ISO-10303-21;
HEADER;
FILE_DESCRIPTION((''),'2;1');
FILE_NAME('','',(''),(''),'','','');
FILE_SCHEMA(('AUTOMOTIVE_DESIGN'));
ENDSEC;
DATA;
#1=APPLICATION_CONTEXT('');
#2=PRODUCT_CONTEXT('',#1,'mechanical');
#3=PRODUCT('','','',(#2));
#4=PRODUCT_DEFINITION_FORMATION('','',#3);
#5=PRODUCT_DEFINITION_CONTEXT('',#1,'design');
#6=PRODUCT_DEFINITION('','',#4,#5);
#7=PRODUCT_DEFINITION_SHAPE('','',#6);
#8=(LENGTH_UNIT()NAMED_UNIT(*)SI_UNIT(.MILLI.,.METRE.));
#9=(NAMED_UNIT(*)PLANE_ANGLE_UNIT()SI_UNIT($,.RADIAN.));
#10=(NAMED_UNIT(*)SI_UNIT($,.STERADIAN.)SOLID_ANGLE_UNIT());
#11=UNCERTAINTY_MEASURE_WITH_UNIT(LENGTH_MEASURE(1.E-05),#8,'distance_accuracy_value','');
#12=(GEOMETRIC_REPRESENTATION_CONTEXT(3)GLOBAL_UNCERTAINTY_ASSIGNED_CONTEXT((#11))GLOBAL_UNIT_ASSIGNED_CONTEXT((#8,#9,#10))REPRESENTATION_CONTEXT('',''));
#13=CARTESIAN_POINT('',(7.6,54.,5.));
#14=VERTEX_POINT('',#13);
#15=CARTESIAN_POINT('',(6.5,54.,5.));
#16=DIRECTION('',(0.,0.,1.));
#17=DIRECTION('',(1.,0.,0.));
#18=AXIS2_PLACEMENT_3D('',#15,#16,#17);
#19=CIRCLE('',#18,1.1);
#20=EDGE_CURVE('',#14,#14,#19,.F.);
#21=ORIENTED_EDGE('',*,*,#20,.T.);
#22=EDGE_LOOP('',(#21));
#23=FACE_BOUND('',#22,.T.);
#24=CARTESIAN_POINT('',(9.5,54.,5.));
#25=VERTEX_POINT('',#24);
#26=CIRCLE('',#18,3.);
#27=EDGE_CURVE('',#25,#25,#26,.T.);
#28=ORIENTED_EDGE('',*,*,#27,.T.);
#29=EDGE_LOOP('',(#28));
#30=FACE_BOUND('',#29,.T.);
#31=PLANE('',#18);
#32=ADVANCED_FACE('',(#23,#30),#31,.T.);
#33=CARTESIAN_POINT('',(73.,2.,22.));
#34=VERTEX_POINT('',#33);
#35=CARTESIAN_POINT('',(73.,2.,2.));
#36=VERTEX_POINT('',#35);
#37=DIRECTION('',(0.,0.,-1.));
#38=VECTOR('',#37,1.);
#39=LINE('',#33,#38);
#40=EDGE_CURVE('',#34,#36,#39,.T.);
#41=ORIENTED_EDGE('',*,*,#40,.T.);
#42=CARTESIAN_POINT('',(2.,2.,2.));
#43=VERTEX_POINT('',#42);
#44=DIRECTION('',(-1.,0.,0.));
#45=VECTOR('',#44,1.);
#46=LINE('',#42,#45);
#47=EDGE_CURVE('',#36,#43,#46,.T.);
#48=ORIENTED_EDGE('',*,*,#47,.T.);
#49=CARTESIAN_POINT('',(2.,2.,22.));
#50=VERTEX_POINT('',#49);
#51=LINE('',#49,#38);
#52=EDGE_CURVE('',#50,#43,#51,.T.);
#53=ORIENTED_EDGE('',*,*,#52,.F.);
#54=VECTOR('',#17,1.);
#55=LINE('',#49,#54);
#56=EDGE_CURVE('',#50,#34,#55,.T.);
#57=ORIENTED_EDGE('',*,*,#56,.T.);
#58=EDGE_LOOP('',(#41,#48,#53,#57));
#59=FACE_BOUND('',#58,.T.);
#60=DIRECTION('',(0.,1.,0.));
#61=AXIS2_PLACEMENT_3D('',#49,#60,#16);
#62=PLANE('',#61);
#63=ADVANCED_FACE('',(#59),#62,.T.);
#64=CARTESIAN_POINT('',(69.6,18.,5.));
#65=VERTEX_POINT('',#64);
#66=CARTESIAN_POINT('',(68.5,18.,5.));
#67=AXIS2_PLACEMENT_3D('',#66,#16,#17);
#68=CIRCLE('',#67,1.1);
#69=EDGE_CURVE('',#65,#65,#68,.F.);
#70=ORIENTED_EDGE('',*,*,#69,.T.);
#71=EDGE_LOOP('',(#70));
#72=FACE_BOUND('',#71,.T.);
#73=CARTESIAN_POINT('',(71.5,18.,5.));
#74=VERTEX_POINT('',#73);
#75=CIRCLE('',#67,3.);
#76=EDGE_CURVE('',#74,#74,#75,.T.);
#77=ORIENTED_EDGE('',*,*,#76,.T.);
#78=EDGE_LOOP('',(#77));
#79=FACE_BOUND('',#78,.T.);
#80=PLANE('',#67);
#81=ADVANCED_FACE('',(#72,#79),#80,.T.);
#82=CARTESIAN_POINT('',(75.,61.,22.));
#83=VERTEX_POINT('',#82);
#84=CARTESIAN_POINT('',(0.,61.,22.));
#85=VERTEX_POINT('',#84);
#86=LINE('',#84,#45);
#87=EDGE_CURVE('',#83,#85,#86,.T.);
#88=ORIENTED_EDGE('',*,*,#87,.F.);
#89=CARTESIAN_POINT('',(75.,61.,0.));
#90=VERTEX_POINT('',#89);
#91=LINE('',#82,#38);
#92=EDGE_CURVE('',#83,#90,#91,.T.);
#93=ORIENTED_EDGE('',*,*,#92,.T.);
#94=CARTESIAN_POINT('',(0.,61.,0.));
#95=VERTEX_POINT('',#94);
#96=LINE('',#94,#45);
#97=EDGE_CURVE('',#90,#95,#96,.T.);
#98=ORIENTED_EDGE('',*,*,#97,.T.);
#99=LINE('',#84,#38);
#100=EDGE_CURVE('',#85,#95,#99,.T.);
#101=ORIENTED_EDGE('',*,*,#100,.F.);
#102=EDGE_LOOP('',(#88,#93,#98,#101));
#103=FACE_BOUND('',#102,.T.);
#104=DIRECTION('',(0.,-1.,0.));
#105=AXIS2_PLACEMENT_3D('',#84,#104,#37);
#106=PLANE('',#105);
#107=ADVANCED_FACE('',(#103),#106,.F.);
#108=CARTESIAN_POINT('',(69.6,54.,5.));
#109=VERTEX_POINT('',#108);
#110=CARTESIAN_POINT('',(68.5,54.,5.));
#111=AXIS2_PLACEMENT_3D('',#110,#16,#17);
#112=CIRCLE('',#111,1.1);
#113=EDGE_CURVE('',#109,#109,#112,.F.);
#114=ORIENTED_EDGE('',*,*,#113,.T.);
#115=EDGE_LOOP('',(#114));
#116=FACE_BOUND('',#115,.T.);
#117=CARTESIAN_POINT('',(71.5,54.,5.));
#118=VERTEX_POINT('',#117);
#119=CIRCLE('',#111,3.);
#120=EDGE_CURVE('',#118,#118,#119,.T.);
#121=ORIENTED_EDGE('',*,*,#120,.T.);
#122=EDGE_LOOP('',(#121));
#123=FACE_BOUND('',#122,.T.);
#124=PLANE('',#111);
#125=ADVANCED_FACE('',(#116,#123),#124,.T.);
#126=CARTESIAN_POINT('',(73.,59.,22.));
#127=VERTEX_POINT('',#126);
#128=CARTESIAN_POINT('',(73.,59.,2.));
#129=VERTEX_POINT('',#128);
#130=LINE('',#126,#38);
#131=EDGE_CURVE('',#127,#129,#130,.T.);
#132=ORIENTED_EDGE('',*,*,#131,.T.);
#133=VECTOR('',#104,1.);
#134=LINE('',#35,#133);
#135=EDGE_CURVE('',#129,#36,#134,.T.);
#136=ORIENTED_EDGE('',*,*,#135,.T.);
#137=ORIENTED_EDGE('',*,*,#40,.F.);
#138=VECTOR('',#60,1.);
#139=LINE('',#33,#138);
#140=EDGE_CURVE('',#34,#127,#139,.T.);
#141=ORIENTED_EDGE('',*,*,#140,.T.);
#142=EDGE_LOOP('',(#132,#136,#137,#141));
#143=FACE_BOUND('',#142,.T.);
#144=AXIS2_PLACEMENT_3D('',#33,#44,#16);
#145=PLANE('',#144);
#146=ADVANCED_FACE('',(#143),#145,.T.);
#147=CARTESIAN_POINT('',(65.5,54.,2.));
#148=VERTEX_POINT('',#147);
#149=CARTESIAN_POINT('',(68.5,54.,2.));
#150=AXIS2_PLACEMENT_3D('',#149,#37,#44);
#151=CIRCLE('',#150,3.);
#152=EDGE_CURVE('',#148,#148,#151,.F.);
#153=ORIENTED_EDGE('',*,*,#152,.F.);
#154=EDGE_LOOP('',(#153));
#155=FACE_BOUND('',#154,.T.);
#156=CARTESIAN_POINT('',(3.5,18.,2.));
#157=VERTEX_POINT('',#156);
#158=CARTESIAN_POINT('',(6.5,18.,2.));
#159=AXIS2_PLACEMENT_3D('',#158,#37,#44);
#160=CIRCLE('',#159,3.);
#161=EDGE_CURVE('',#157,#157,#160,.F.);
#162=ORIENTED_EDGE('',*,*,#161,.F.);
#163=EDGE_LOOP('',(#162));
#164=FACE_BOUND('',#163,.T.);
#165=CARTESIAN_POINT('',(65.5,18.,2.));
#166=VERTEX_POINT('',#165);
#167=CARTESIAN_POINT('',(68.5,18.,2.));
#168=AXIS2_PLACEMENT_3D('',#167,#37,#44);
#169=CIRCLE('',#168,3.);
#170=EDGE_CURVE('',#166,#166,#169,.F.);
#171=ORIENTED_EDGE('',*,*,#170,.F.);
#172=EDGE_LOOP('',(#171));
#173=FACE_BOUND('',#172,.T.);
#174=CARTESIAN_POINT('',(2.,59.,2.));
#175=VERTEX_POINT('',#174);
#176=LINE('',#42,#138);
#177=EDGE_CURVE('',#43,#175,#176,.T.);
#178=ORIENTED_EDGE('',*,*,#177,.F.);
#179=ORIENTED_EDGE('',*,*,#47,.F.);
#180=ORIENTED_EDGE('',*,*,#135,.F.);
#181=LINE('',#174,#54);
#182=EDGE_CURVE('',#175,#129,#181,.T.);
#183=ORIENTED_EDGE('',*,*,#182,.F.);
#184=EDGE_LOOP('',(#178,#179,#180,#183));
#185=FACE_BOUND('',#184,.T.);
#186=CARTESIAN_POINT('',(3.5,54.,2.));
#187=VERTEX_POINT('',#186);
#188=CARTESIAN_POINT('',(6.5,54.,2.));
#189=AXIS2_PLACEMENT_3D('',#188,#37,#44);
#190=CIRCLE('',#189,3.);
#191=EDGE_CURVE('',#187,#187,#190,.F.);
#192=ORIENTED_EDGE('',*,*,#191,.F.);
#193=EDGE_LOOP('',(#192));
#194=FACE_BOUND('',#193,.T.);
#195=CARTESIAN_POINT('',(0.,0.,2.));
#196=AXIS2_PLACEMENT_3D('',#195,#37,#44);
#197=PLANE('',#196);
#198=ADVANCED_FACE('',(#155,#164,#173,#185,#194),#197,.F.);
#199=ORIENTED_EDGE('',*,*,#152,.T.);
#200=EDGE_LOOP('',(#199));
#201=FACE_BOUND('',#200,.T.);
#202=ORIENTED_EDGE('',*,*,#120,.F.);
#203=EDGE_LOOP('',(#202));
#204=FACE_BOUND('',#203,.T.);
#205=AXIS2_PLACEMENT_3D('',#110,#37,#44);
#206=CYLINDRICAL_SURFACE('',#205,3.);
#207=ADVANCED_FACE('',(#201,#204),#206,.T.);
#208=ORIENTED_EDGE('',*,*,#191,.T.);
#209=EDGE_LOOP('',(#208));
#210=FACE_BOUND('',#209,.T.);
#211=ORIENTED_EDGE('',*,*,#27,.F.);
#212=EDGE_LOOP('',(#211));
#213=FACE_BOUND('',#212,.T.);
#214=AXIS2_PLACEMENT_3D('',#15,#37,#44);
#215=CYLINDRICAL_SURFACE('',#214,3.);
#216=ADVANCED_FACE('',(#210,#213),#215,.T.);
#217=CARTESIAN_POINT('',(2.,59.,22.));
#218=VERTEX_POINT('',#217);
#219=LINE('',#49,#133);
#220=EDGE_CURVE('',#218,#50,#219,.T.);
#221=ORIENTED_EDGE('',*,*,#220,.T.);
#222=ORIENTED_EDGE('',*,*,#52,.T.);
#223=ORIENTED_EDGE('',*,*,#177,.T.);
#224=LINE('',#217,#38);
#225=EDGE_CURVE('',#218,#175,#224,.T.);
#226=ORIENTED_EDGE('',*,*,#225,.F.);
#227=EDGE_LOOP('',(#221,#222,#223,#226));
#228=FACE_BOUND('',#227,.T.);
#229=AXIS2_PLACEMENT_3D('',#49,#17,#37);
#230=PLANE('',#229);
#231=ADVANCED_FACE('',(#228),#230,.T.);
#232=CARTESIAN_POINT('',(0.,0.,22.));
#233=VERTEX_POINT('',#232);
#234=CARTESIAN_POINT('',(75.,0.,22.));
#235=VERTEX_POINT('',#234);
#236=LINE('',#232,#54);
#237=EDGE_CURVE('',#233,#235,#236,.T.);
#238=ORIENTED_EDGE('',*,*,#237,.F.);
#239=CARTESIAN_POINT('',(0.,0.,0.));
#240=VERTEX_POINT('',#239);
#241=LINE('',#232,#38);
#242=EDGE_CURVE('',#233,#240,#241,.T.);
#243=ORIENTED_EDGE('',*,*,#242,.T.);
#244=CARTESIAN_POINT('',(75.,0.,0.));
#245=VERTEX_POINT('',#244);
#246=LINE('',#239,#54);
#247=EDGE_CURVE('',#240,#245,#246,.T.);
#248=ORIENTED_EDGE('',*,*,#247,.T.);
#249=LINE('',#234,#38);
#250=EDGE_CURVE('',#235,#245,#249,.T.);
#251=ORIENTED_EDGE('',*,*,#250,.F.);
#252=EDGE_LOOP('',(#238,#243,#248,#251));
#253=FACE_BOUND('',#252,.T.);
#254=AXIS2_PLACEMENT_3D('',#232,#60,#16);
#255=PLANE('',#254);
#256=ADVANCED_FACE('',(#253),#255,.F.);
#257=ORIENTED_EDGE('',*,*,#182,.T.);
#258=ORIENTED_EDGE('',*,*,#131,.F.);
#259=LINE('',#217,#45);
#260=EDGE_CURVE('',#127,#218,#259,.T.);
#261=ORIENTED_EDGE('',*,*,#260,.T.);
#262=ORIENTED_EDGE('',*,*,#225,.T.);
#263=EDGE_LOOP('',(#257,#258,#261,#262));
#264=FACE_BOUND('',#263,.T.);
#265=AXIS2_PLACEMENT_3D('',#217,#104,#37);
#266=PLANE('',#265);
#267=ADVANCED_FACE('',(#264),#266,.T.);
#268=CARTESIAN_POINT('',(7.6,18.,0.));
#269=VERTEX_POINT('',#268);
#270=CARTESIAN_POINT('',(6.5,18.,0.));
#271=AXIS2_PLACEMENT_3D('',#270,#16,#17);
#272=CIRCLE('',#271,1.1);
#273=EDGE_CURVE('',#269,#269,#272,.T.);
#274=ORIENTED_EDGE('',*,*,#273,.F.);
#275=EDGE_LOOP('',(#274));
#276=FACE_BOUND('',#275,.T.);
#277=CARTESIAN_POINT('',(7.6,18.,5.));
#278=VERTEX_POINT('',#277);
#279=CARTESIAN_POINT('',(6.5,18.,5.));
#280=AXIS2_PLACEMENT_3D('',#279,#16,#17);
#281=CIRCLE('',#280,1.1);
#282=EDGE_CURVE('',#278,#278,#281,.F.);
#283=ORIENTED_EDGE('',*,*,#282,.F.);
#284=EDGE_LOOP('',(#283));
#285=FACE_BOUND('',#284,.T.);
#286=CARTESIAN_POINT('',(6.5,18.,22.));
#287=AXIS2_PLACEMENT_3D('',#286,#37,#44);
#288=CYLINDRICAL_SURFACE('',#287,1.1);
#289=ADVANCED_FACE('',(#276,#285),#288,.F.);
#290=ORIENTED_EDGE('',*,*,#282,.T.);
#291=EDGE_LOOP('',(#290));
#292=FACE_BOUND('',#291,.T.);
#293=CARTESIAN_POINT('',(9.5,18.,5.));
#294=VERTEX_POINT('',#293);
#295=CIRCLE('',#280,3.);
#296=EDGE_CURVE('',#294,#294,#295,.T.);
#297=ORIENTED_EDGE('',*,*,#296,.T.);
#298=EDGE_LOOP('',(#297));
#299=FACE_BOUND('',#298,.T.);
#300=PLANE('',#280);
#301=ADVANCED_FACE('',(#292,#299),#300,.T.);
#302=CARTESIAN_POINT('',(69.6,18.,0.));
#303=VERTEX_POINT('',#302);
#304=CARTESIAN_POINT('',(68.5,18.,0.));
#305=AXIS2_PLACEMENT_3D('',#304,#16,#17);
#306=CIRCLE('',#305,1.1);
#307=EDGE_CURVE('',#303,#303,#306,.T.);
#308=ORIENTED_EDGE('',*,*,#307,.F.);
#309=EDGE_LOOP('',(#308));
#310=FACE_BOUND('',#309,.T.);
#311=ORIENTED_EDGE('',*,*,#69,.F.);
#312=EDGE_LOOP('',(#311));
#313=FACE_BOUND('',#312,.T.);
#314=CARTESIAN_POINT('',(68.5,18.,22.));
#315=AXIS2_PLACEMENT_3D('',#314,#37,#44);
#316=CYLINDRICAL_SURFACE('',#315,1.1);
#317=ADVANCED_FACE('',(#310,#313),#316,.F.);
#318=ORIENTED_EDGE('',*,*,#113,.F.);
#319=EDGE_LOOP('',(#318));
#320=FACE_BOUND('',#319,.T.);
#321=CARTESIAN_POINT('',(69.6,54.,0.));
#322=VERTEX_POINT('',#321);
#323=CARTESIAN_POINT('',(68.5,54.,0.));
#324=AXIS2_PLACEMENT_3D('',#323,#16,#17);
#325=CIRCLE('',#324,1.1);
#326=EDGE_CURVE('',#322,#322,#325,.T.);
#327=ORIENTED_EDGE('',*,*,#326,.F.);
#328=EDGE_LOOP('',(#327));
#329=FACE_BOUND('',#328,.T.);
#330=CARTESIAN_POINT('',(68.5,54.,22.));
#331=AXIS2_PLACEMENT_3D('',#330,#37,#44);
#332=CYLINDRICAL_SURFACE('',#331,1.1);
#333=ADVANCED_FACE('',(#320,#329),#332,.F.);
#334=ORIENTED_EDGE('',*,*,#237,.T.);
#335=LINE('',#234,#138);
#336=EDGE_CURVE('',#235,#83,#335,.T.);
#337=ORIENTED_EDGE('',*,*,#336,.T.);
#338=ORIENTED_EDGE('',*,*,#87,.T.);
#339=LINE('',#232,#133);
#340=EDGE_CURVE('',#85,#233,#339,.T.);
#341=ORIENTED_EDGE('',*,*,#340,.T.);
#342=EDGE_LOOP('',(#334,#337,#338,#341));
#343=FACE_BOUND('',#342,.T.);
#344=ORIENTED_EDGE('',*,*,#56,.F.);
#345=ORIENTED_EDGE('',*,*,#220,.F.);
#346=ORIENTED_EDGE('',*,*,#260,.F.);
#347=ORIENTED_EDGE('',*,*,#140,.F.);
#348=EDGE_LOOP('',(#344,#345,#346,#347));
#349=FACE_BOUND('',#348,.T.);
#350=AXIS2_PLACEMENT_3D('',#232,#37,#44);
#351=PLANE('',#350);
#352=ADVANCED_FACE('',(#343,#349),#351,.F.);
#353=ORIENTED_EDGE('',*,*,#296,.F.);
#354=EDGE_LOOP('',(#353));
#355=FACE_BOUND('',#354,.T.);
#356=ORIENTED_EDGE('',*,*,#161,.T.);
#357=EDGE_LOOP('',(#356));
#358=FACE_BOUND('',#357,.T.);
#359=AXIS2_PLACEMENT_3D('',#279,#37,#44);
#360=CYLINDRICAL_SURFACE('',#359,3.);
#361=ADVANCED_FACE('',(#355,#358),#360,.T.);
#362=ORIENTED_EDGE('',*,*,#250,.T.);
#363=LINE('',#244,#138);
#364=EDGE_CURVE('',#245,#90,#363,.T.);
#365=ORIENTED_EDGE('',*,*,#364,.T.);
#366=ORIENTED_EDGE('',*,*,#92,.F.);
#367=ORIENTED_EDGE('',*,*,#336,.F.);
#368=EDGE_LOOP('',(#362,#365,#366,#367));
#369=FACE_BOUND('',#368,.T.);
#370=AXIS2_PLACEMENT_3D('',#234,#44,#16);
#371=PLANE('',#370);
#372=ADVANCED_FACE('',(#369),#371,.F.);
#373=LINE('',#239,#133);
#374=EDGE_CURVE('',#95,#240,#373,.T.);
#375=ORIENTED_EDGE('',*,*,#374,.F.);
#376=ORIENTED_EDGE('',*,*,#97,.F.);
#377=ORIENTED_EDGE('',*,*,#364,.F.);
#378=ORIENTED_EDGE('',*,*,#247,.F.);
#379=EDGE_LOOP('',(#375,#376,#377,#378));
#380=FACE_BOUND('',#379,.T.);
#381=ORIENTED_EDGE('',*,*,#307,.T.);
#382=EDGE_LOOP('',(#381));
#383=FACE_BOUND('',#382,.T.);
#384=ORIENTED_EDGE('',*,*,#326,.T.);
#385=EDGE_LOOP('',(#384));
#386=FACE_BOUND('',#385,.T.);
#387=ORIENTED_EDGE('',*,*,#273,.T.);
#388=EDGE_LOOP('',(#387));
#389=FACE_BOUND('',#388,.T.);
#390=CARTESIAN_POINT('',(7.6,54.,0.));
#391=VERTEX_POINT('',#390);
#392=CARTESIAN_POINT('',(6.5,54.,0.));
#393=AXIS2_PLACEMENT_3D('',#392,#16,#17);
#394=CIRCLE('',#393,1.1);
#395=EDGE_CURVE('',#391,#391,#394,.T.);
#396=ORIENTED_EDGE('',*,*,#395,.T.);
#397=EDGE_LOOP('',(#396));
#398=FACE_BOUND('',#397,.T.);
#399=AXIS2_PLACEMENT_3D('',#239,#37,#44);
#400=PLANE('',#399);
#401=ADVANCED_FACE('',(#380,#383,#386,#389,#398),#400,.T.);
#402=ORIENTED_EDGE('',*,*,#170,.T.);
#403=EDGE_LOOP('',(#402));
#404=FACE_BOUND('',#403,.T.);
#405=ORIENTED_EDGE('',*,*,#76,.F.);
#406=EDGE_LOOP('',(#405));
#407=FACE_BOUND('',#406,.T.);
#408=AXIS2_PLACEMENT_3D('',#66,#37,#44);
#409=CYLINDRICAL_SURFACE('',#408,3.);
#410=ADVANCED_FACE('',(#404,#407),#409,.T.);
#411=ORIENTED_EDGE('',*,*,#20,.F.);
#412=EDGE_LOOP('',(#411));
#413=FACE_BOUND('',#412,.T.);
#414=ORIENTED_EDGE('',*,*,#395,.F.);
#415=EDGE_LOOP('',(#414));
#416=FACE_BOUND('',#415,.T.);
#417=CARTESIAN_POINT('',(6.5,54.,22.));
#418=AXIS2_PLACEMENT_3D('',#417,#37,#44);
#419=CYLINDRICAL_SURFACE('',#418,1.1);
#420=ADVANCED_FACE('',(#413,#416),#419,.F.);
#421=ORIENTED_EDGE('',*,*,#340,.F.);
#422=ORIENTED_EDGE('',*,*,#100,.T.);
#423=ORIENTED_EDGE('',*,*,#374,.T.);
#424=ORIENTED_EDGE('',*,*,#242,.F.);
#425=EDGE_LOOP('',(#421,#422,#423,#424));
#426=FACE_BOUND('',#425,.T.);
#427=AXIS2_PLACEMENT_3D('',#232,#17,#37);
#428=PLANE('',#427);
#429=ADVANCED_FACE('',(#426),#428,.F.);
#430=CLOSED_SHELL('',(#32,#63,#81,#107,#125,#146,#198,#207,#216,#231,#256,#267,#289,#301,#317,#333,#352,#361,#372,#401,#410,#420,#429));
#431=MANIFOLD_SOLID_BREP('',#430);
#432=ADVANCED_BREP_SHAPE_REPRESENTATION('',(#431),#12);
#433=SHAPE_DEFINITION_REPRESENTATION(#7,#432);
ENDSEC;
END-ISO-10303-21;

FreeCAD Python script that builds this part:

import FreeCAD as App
import Part
import Sketcher
from FreeCAD import Vector

doc = App.newDocument("Part")
body = doc.addObject("PartDesign::Body", "Body")

# Sketch on XY plane
sketch1 = body.newObject("Sketcher::SketchObject", "Sketch")
sketch1.AttachmentSupport = (doc.getObject("XY_Plane"), [""])
sketch1.MapMode = "FlatFace"
sketch1.addGeometry(Part.LineSegment(Vector(0, 61, 0), Vector(0, 0, 0)), False)
sketch1.addGeometry(Part.LineSegment(Vector(0, 0, 0), Vector(75, 0, 0)), False)
sketch1.addGeometry(Part.LineSegment(Vector(75, 0, 0), Vector(75, 61, 0)), False)
sketch1.addGeometry(Part.LineSegment(Vector(75, 61, 0), Vector(0, 61, 0)), False)
sketch1.addConstraint(Sketcher.Constraint("Coincident", 0, 2, 1, 1))
sketch1.addConstraint(Sketcher.Constraint("Coincident", 1, 2, 2, 1))
sketch1.addConstraint(Sketcher.Constraint("Coincident", 2, 2, 3, 1))
sketch1.addConstraint(Sketcher.Constraint("Coincident", 3, 2, 0, 1))
sketch1.addConstraint(Sketcher.Constraint("Vertical", 0))
sketch1.addConstraint(Sketcher.Constraint("Horizontal", 1))
sketch1.addConstraint(Sketcher.Constraint("Vertical", 2))
sketch1.addConstraint(Sketcher.Constraint("Horizontal", 3))
sketch1.addConstraint(Sketcher.Constraint("Coincident", 0, 2, -1, 1))
sketch1.addConstraint(Sketcher.Constraint("DistanceX", 1, 1, 1, 2, 75.0))
sketch1.addConstraint(Sketcher.Constraint("DistanceY", 0, 2, 0, 1, 61.0))
pad1 = body.newObject("PartDesign::Pad", "Pad")
pad1.Profile = sketch1
pad1.Length = 22

# Sketch on XY plane
sketch2 = body.newObject("Sketcher::SketchObject", "Sketch001")
sketch2.AttachmentSupport = (doc.getObject("XY_Plane"), [""])
sketch2.MapMode = "FlatFace"
sketch2.addGeometry(Part.LineSegment(Vector(2, 59, 0), Vector(2, 2, 0)), False)
sketch2.addGeometry(Part.LineSegment(Vector(2, 2, 0), Vector(73, 2, 0)), False)
sketch2.addGeometry(Part.LineSegment(Vector(73, 2, 0), Vector(73, 59, 0)), False)
sketch2.addGeometry(Part.LineSegment(Vector(73, 59, 0), Vector(2, 59, 0)), False)
sketch2.addConstraint(Sketcher.Constraint("Coincident", 0, 2, 1, 1))
sketch2.addConstraint(Sketcher.Constraint("Coincident", 1, 2, 2, 1))
sketch2.addConstraint(Sketcher.Constraint("Coincident", 2, 2, 3, 1))
sketch2.addConstraint(Sketcher.Constraint("Coincident", 3, 2, 0, 1))
sketch2.addConstraint(Sketcher.Constraint("Vertical", 0))
sketch2.addConstraint(Sketcher.Constraint("Horizontal", 1))
sketch2.addConstraint(Sketcher.Constraint("Vertical", 2))
sketch2.addConstraint(Sketcher.Constraint("Horizontal", 3))
sketch2.addConstraint(Sketcher.Constraint("DistanceX", 1, 1, 1, 2, 71.0))
sketch2.addConstraint(Sketcher.Constraint("DistanceY", 0, 2, 0, 1, 57.0))
sketch2.addConstraint(Sketcher.Constraint("DistanceX", -1, 1, 0, 2, 2.0))
sketch2.addConstraint(Sketcher.Constraint("DistanceY", -1, 1, 0, 2, 2.0))
pocket1 = body.newObject("PartDesign::Pocket", "Pocket")
pocket1.Profile = sketch2
pocket1.Type = "ThroughAll"
pocket1.Reversed = True

# Sketch on XY plane
sketch3 = body.newObject("Sketcher::SketchObject", "Sketch002")
sketch3.AttachmentSupport = (doc.getObject("XY_Plane"), [""])
sketch3.MapMode = "FlatFace"
sketch3.addGeometry(Part.LineSegment(Vector(0, 61, 0), Vector(0, 0, 0)), False)
sketch3.addGeometry(Part.LineSegment(Vector(0, 0, 0), Vector(75, 0, 0)), False)
sketch3.addGeometry(Part.LineSegment(Vector(75, 0, 0), Vector(75, 61, 0)), False)
sketch3.addGeometry(Part.LineSegment(Vector(75, 61, 0), Vector(0, 61, 0)), False)
sketch3.addConstraint(Sketcher.Constraint("Coincident", 0, 2, 1, 1))
sketch3.addConstraint(Sketcher.Constraint("Coincident", 1, 2, 2, 1))
sketch3.addConstraint(Sketcher.Constraint("Coincident", 2, 2, 3, 1))
sketch3.addConstraint(Sketcher.Constraint("Coincident", 3, 2, 0, 1))
sketch3.addConstraint(Sketcher.Constraint("Vertical", 0))
sketch3.addConstraint(Sketcher.Constraint("Horizontal", 1))
sketch3.addConstraint(Sketcher.Constraint("Vertical", 2))
sketch3.addConstraint(Sketcher.Constraint("Horizontal", 3))
sketch3.addConstraint(Sketcher.Constraint("Coincident", 0, 2, -1, 1))
sketch3.addConstraint(Sketcher.Constraint("DistanceX", 1, 1, 1, 2, 75.0))
sketch3.addConstraint(Sketcher.Constraint("DistanceY", 0, 2, 0, 1, 61.0))
pad2 = body.newObject("PartDesign::Pad", "Pad001")
pad2.Profile = sketch3
pad2.Length = 2

# Sketch on XY plane
sketch4 = body.newObject("Sketcher::SketchObject", "Sketch003")
sketch4.AttachmentSupport = (doc.getObject("XY_Plane"), [""])
sketch4.MapMode = "FlatFace"
sketch4.addGeometry(Part.Circle(Vector(6.5, 18, 0), Vector(0, 0, 1), 3), False)
sketch4.addGeometry(Part.Circle(Vector(68.5, 18, 0), Vector(0, 0, 1), 3), False)
sketch4.addGeometry(Part.Circle(Vector(6.5, 54, 0), Vector(0, 0, 1), 3), False)
sketch4.addGeometry(Part.Circle(Vector(68.5, 54, 0), Vector(0, 0, 1), 3), False)
sketch4.addConstraint(Sketcher.Constraint("Equal", 0, 1))
sketch4.addConstraint(Sketcher.Constraint("Equal", 1, 2))
sketch4.addConstraint(Sketcher.Constraint("Equal", 2, 3))
sketch4.addConstraint(Sketcher.Constraint("Horizontal", 0, 3, 1, 3))
sketch4.addConstraint(Sketcher.Constraint("Horizontal", 2, 3, 3, 3))
sketch4.addConstraint(Sketcher.Constraint("Vertical", 0, 3, 2, 3))
sketch4.addConstraint(Sketcher.Constraint("Vertical", 1, 3, 3, 3))
sketch4.addConstraint(Sketcher.Constraint("Diameter", 0, 6.0))
sketch4.addConstraint(Sketcher.Constraint("DistanceY", -1, 1, 0, 3, 18.0))
sketch4.addConstraint(Sketcher.Constraint("DistanceY", -1, 1, 2, 3, 54.0))
sketch4.addConstraint(Sketcher.Constraint("DistanceX", 0, 3, 1, 3, 62.0))
sketch4.addConstraint(Sketcher.Constraint("DistanceX", -1, 1, 0, 3, 6.5))
pad3 = body.newObject("PartDesign::Pad", "Pad002")
pad3.Profile = sketch4
pad3.Length = 5

# Sketch on XY plane
sketch5 = body.newObject("Sketcher::SketchObject", "Sketch004")
sketch5.AttachmentSupport = (doc.getObject("XY_Plane"), [""])
sketch5.MapMode = "FlatFace"
sketch5.addGeometry(Part.Circle(Vector(6.5, 18, 0), Vector(0, 0, 1), 1.1), False)
sketch5.addGeometry(Part.Circle(Vector(68.5, 18, 0), Vector(0, 0, 1), 1.1), False)
sketch5.addGeometry(Part.Circle(Vector(6.5, 54, 0), Vector(0, 0, 1), 1.1), False)
sketch5.addGeometry(Part.Circle(Vector(68.5, 54, 0), Vector(0, 0, 1), 1.1), False)
sketch5.addConstraint(Sketcher.Constraint("Equal", 0, 1))
sketch5.addConstraint(Sketcher.Constraint("Equal", 1, 2))
sketch5.addConstraint(Sketcher.Constraint("Equal", 2, 3))
sketch5.addConstraint(Sketcher.Constraint("Horizontal", 0, 3, 1, 3))
sketch5.addConstraint(Sketcher.Constraint("Horizontal", 2, 3, 3, 3))
sketch5.addConstraint(Sketcher.Constraint("Vertical", 0, 3, 2, 3))
sketch5.addConstraint(Sketcher.Constraint("Vertical", 1, 3, 3, 3))
sketch5.addConstraint(Sketcher.Constraint("Diameter", 0, 2.2))
sketch5.addConstraint(Sketcher.Constraint("DistanceY", -1, 1, 0, 3, 18.0))
sketch5.addConstraint(Sketcher.Constraint("DistanceY", -1, 1, 2, 3, 54.0))
sketch5.addConstraint(Sketcher.Constraint("DistanceX", 0, 3, 1, 3, 62.0))
sketch5.addConstraint(Sketcher.Constraint("DistanceX", -1, 1, 0, 3, 6.5))
pocket2 = body.newObject("PartDesign::Pocket", "Pocket001")
pocket2.Profile = sketch5
pocket2.Type = "ThroughAll"
pocket2.Reversed = True

doc.recompute()
